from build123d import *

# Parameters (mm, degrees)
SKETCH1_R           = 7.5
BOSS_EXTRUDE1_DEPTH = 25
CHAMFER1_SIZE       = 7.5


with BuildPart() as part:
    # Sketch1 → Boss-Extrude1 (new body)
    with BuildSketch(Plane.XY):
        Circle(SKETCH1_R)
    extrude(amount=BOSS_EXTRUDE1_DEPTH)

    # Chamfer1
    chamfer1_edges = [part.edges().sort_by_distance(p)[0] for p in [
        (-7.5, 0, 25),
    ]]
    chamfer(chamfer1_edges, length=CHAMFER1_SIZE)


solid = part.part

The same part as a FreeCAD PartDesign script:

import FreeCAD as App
import Part
import Sketcher

V = App.Vector


def edges_at(feature, points):
    """Names of the edges that pass closest to the given points."""
    edges = feature.Shape.Edges
    near = lambda p: min(range(len(edges)), key=lambda i: edges[i].distToShape(Part.Vertex(*p))[0])
    return sorted({f"Edge{near(p) + 1}" for p in points})

doc = App.newDocument("Part")
body = doc.addObject("PartDesign::Body", "Body")

sketch1 = body.newObject("Sketcher::SketchObject", "Sketch")
sketch1.AttachmentSupport = (doc.getObject("XY_Plane"), [""])
sketch1.MapMode = "FlatFace"
sketch1.addGeometry(Part.Circle(V(0, 0, 0), V(0, 0, 1), 8), False)
sketch1.addConstraint(Sketcher.Constraint("Coincident", 0, 3, -1, 1))
sketch1.addConstraint(Sketcher.Constraint("Diameter", 0, 15.0))
pad1 = body.newObject("PartDesign::Pad", "Pad")
pad1.Profile = sketch1
pad1.Length = 25
doc.recompute()

chamfer = body.newObject("PartDesign::Chamfer", "Chamfer")
chamfer.Base = (pad1, edges_at(pad1, [(-7.5, 0, 25)]))
chamfer.Size = 7.5

doc.recompute()
